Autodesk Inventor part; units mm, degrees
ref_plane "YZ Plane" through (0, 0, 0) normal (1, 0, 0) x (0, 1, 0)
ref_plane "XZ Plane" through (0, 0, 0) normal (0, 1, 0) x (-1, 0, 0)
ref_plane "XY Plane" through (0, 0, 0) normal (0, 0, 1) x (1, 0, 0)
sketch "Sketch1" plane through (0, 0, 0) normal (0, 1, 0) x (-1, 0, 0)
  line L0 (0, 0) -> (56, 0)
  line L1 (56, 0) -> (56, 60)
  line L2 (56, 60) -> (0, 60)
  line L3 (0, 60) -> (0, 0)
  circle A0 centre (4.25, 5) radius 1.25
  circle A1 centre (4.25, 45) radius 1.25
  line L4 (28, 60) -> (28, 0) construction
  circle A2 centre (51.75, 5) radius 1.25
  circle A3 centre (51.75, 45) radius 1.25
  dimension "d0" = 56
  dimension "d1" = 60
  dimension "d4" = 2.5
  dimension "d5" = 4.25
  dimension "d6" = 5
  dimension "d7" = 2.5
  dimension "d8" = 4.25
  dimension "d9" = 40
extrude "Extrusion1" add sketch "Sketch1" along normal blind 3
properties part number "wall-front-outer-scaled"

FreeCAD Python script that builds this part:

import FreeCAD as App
import Part
import Sketcher

doc = App.newDocument("Part")
body = doc.addObject("PartDesign::Body", "Body")

sketch1 = body.newObject("Sketcher::SketchObject", "Sketch")
sketch1.AttachmentSupport = (doc.getObject("XZ_Plane"), [""])
sketch1.MapMode = "FlatFace"
sketch1.addGeometry(Part.LineSegment(App.Vector(0, 60, 0), App.Vector(0, 0, 0)), False)
sketch1.addGeometry(Part.LineSegment(App.Vector(0, 0, 0), App.Vector(-56, 0, 0)), False)
sketch1.addGeometry(Part.LineSegment(App.Vector(-56, 0, 0), App.Vector(-56, 60, 0)), False)
sketch1.addGeometry(Part.LineSegment(App.Vector(-56, 60, 0), App.Vector(0, 60, 0)), False)
sketch1.addGeometry(Part.Circle(App.Vector(-4.2, 5, 0), App.Vector(0, 0, 1), 1.2), False)
sketch1.addGeometry(Part.Circle(App.Vector(-51.8, 5, 0), App.Vector(0, 0, 1), 1.2), False)
sketch1.addGeometry(Part.Circle(App.Vector(-4.2, 45, 0), App.Vector(0, 0, 1), 1.2), False)
sketch1.addGeometry(Part.Circle(App.Vector(-51.8, 45, 0), App.Vector(0, 0, 1), 1.2), False)
sketch1.addConstraint(Sketcher.Constraint("Coincident", 0, 2, 1, 1))
sketch1.addConstraint(Sketcher.Constraint("Coincident", 1, 2, 2, 1))
sketch1.addConstraint(Sketcher.Constraint("Coincident", 2, 2, 3, 1))
sketch1.addConstraint(Sketcher.Constraint("Coincident", 3, 2, 0, 1))
sketch1.addConstraint(Sketcher.Constraint("Vertical", 0))
sketch1.addConstraint(Sketcher.Constraint("Horizontal", 1))
sketch1.addConstraint(Sketcher.Constraint("Vertical", 2))
sketch1.addConstraint(Sketcher.Constraint("Horizontal", 3))
sketch1.addConstraint(Sketcher.Constraint("Coincident", 0, 2, -1, 1))
sketch1.addConstraint(Sketcher.Constraint("Equal", 4, 5))
sketch1.addConstraint(Sketcher.Constraint("Equal", 5, 6))
sketch1.addConstraint(Sketcher.Constraint("Equal", 6, 7))
sketch1.addConstraint(Sketcher.Constraint("Horizontal", 4, 3, 5, 3))
sketch1.addConstraint(Sketcher.Constraint("Horizontal", 6, 3, 7, 3))
sketch1.addConstraint(Sketcher.Constraint("Vertical", 4, 3, 6, 3))
sketch1.addConstraint(Sketcher.Constraint("Vertical", 5, 3, 7, 3))
sketch1.addConstraint(Sketcher.Constraint("Diameter", 4, 2.5))
sketch1.addConstraint(Sketcher.Constraint("DistanceX", 1, 2, 1, 1, 56.0))
sketch1.addConstraint(Sketcher.Constraint("DistanceY", 0, 2, 0, 1, 60.0))
sketch1.addConstraint(Sketcher.Constraint("DistanceY", -1, 1, 4, 3, 5.0))
sketch1.addConstraint(Sketcher.Constraint("DistanceY", 4, 3, 6, 3, 40.0))
sketch1.addConstraint(Sketcher.Constraint("DistanceX", 4, 3, -1, 1, 4.25))
sketch1.addConstraint(Sketcher.Constraint("DistanceX", 1, 2, 5, 3, 4.25))
pad1 = body.newObject("PartDesign::Pad", "Pad")
pad1.Profile = sketch1
pad1.Length = 3
pad1.Reversed = True

doc.recompute()
